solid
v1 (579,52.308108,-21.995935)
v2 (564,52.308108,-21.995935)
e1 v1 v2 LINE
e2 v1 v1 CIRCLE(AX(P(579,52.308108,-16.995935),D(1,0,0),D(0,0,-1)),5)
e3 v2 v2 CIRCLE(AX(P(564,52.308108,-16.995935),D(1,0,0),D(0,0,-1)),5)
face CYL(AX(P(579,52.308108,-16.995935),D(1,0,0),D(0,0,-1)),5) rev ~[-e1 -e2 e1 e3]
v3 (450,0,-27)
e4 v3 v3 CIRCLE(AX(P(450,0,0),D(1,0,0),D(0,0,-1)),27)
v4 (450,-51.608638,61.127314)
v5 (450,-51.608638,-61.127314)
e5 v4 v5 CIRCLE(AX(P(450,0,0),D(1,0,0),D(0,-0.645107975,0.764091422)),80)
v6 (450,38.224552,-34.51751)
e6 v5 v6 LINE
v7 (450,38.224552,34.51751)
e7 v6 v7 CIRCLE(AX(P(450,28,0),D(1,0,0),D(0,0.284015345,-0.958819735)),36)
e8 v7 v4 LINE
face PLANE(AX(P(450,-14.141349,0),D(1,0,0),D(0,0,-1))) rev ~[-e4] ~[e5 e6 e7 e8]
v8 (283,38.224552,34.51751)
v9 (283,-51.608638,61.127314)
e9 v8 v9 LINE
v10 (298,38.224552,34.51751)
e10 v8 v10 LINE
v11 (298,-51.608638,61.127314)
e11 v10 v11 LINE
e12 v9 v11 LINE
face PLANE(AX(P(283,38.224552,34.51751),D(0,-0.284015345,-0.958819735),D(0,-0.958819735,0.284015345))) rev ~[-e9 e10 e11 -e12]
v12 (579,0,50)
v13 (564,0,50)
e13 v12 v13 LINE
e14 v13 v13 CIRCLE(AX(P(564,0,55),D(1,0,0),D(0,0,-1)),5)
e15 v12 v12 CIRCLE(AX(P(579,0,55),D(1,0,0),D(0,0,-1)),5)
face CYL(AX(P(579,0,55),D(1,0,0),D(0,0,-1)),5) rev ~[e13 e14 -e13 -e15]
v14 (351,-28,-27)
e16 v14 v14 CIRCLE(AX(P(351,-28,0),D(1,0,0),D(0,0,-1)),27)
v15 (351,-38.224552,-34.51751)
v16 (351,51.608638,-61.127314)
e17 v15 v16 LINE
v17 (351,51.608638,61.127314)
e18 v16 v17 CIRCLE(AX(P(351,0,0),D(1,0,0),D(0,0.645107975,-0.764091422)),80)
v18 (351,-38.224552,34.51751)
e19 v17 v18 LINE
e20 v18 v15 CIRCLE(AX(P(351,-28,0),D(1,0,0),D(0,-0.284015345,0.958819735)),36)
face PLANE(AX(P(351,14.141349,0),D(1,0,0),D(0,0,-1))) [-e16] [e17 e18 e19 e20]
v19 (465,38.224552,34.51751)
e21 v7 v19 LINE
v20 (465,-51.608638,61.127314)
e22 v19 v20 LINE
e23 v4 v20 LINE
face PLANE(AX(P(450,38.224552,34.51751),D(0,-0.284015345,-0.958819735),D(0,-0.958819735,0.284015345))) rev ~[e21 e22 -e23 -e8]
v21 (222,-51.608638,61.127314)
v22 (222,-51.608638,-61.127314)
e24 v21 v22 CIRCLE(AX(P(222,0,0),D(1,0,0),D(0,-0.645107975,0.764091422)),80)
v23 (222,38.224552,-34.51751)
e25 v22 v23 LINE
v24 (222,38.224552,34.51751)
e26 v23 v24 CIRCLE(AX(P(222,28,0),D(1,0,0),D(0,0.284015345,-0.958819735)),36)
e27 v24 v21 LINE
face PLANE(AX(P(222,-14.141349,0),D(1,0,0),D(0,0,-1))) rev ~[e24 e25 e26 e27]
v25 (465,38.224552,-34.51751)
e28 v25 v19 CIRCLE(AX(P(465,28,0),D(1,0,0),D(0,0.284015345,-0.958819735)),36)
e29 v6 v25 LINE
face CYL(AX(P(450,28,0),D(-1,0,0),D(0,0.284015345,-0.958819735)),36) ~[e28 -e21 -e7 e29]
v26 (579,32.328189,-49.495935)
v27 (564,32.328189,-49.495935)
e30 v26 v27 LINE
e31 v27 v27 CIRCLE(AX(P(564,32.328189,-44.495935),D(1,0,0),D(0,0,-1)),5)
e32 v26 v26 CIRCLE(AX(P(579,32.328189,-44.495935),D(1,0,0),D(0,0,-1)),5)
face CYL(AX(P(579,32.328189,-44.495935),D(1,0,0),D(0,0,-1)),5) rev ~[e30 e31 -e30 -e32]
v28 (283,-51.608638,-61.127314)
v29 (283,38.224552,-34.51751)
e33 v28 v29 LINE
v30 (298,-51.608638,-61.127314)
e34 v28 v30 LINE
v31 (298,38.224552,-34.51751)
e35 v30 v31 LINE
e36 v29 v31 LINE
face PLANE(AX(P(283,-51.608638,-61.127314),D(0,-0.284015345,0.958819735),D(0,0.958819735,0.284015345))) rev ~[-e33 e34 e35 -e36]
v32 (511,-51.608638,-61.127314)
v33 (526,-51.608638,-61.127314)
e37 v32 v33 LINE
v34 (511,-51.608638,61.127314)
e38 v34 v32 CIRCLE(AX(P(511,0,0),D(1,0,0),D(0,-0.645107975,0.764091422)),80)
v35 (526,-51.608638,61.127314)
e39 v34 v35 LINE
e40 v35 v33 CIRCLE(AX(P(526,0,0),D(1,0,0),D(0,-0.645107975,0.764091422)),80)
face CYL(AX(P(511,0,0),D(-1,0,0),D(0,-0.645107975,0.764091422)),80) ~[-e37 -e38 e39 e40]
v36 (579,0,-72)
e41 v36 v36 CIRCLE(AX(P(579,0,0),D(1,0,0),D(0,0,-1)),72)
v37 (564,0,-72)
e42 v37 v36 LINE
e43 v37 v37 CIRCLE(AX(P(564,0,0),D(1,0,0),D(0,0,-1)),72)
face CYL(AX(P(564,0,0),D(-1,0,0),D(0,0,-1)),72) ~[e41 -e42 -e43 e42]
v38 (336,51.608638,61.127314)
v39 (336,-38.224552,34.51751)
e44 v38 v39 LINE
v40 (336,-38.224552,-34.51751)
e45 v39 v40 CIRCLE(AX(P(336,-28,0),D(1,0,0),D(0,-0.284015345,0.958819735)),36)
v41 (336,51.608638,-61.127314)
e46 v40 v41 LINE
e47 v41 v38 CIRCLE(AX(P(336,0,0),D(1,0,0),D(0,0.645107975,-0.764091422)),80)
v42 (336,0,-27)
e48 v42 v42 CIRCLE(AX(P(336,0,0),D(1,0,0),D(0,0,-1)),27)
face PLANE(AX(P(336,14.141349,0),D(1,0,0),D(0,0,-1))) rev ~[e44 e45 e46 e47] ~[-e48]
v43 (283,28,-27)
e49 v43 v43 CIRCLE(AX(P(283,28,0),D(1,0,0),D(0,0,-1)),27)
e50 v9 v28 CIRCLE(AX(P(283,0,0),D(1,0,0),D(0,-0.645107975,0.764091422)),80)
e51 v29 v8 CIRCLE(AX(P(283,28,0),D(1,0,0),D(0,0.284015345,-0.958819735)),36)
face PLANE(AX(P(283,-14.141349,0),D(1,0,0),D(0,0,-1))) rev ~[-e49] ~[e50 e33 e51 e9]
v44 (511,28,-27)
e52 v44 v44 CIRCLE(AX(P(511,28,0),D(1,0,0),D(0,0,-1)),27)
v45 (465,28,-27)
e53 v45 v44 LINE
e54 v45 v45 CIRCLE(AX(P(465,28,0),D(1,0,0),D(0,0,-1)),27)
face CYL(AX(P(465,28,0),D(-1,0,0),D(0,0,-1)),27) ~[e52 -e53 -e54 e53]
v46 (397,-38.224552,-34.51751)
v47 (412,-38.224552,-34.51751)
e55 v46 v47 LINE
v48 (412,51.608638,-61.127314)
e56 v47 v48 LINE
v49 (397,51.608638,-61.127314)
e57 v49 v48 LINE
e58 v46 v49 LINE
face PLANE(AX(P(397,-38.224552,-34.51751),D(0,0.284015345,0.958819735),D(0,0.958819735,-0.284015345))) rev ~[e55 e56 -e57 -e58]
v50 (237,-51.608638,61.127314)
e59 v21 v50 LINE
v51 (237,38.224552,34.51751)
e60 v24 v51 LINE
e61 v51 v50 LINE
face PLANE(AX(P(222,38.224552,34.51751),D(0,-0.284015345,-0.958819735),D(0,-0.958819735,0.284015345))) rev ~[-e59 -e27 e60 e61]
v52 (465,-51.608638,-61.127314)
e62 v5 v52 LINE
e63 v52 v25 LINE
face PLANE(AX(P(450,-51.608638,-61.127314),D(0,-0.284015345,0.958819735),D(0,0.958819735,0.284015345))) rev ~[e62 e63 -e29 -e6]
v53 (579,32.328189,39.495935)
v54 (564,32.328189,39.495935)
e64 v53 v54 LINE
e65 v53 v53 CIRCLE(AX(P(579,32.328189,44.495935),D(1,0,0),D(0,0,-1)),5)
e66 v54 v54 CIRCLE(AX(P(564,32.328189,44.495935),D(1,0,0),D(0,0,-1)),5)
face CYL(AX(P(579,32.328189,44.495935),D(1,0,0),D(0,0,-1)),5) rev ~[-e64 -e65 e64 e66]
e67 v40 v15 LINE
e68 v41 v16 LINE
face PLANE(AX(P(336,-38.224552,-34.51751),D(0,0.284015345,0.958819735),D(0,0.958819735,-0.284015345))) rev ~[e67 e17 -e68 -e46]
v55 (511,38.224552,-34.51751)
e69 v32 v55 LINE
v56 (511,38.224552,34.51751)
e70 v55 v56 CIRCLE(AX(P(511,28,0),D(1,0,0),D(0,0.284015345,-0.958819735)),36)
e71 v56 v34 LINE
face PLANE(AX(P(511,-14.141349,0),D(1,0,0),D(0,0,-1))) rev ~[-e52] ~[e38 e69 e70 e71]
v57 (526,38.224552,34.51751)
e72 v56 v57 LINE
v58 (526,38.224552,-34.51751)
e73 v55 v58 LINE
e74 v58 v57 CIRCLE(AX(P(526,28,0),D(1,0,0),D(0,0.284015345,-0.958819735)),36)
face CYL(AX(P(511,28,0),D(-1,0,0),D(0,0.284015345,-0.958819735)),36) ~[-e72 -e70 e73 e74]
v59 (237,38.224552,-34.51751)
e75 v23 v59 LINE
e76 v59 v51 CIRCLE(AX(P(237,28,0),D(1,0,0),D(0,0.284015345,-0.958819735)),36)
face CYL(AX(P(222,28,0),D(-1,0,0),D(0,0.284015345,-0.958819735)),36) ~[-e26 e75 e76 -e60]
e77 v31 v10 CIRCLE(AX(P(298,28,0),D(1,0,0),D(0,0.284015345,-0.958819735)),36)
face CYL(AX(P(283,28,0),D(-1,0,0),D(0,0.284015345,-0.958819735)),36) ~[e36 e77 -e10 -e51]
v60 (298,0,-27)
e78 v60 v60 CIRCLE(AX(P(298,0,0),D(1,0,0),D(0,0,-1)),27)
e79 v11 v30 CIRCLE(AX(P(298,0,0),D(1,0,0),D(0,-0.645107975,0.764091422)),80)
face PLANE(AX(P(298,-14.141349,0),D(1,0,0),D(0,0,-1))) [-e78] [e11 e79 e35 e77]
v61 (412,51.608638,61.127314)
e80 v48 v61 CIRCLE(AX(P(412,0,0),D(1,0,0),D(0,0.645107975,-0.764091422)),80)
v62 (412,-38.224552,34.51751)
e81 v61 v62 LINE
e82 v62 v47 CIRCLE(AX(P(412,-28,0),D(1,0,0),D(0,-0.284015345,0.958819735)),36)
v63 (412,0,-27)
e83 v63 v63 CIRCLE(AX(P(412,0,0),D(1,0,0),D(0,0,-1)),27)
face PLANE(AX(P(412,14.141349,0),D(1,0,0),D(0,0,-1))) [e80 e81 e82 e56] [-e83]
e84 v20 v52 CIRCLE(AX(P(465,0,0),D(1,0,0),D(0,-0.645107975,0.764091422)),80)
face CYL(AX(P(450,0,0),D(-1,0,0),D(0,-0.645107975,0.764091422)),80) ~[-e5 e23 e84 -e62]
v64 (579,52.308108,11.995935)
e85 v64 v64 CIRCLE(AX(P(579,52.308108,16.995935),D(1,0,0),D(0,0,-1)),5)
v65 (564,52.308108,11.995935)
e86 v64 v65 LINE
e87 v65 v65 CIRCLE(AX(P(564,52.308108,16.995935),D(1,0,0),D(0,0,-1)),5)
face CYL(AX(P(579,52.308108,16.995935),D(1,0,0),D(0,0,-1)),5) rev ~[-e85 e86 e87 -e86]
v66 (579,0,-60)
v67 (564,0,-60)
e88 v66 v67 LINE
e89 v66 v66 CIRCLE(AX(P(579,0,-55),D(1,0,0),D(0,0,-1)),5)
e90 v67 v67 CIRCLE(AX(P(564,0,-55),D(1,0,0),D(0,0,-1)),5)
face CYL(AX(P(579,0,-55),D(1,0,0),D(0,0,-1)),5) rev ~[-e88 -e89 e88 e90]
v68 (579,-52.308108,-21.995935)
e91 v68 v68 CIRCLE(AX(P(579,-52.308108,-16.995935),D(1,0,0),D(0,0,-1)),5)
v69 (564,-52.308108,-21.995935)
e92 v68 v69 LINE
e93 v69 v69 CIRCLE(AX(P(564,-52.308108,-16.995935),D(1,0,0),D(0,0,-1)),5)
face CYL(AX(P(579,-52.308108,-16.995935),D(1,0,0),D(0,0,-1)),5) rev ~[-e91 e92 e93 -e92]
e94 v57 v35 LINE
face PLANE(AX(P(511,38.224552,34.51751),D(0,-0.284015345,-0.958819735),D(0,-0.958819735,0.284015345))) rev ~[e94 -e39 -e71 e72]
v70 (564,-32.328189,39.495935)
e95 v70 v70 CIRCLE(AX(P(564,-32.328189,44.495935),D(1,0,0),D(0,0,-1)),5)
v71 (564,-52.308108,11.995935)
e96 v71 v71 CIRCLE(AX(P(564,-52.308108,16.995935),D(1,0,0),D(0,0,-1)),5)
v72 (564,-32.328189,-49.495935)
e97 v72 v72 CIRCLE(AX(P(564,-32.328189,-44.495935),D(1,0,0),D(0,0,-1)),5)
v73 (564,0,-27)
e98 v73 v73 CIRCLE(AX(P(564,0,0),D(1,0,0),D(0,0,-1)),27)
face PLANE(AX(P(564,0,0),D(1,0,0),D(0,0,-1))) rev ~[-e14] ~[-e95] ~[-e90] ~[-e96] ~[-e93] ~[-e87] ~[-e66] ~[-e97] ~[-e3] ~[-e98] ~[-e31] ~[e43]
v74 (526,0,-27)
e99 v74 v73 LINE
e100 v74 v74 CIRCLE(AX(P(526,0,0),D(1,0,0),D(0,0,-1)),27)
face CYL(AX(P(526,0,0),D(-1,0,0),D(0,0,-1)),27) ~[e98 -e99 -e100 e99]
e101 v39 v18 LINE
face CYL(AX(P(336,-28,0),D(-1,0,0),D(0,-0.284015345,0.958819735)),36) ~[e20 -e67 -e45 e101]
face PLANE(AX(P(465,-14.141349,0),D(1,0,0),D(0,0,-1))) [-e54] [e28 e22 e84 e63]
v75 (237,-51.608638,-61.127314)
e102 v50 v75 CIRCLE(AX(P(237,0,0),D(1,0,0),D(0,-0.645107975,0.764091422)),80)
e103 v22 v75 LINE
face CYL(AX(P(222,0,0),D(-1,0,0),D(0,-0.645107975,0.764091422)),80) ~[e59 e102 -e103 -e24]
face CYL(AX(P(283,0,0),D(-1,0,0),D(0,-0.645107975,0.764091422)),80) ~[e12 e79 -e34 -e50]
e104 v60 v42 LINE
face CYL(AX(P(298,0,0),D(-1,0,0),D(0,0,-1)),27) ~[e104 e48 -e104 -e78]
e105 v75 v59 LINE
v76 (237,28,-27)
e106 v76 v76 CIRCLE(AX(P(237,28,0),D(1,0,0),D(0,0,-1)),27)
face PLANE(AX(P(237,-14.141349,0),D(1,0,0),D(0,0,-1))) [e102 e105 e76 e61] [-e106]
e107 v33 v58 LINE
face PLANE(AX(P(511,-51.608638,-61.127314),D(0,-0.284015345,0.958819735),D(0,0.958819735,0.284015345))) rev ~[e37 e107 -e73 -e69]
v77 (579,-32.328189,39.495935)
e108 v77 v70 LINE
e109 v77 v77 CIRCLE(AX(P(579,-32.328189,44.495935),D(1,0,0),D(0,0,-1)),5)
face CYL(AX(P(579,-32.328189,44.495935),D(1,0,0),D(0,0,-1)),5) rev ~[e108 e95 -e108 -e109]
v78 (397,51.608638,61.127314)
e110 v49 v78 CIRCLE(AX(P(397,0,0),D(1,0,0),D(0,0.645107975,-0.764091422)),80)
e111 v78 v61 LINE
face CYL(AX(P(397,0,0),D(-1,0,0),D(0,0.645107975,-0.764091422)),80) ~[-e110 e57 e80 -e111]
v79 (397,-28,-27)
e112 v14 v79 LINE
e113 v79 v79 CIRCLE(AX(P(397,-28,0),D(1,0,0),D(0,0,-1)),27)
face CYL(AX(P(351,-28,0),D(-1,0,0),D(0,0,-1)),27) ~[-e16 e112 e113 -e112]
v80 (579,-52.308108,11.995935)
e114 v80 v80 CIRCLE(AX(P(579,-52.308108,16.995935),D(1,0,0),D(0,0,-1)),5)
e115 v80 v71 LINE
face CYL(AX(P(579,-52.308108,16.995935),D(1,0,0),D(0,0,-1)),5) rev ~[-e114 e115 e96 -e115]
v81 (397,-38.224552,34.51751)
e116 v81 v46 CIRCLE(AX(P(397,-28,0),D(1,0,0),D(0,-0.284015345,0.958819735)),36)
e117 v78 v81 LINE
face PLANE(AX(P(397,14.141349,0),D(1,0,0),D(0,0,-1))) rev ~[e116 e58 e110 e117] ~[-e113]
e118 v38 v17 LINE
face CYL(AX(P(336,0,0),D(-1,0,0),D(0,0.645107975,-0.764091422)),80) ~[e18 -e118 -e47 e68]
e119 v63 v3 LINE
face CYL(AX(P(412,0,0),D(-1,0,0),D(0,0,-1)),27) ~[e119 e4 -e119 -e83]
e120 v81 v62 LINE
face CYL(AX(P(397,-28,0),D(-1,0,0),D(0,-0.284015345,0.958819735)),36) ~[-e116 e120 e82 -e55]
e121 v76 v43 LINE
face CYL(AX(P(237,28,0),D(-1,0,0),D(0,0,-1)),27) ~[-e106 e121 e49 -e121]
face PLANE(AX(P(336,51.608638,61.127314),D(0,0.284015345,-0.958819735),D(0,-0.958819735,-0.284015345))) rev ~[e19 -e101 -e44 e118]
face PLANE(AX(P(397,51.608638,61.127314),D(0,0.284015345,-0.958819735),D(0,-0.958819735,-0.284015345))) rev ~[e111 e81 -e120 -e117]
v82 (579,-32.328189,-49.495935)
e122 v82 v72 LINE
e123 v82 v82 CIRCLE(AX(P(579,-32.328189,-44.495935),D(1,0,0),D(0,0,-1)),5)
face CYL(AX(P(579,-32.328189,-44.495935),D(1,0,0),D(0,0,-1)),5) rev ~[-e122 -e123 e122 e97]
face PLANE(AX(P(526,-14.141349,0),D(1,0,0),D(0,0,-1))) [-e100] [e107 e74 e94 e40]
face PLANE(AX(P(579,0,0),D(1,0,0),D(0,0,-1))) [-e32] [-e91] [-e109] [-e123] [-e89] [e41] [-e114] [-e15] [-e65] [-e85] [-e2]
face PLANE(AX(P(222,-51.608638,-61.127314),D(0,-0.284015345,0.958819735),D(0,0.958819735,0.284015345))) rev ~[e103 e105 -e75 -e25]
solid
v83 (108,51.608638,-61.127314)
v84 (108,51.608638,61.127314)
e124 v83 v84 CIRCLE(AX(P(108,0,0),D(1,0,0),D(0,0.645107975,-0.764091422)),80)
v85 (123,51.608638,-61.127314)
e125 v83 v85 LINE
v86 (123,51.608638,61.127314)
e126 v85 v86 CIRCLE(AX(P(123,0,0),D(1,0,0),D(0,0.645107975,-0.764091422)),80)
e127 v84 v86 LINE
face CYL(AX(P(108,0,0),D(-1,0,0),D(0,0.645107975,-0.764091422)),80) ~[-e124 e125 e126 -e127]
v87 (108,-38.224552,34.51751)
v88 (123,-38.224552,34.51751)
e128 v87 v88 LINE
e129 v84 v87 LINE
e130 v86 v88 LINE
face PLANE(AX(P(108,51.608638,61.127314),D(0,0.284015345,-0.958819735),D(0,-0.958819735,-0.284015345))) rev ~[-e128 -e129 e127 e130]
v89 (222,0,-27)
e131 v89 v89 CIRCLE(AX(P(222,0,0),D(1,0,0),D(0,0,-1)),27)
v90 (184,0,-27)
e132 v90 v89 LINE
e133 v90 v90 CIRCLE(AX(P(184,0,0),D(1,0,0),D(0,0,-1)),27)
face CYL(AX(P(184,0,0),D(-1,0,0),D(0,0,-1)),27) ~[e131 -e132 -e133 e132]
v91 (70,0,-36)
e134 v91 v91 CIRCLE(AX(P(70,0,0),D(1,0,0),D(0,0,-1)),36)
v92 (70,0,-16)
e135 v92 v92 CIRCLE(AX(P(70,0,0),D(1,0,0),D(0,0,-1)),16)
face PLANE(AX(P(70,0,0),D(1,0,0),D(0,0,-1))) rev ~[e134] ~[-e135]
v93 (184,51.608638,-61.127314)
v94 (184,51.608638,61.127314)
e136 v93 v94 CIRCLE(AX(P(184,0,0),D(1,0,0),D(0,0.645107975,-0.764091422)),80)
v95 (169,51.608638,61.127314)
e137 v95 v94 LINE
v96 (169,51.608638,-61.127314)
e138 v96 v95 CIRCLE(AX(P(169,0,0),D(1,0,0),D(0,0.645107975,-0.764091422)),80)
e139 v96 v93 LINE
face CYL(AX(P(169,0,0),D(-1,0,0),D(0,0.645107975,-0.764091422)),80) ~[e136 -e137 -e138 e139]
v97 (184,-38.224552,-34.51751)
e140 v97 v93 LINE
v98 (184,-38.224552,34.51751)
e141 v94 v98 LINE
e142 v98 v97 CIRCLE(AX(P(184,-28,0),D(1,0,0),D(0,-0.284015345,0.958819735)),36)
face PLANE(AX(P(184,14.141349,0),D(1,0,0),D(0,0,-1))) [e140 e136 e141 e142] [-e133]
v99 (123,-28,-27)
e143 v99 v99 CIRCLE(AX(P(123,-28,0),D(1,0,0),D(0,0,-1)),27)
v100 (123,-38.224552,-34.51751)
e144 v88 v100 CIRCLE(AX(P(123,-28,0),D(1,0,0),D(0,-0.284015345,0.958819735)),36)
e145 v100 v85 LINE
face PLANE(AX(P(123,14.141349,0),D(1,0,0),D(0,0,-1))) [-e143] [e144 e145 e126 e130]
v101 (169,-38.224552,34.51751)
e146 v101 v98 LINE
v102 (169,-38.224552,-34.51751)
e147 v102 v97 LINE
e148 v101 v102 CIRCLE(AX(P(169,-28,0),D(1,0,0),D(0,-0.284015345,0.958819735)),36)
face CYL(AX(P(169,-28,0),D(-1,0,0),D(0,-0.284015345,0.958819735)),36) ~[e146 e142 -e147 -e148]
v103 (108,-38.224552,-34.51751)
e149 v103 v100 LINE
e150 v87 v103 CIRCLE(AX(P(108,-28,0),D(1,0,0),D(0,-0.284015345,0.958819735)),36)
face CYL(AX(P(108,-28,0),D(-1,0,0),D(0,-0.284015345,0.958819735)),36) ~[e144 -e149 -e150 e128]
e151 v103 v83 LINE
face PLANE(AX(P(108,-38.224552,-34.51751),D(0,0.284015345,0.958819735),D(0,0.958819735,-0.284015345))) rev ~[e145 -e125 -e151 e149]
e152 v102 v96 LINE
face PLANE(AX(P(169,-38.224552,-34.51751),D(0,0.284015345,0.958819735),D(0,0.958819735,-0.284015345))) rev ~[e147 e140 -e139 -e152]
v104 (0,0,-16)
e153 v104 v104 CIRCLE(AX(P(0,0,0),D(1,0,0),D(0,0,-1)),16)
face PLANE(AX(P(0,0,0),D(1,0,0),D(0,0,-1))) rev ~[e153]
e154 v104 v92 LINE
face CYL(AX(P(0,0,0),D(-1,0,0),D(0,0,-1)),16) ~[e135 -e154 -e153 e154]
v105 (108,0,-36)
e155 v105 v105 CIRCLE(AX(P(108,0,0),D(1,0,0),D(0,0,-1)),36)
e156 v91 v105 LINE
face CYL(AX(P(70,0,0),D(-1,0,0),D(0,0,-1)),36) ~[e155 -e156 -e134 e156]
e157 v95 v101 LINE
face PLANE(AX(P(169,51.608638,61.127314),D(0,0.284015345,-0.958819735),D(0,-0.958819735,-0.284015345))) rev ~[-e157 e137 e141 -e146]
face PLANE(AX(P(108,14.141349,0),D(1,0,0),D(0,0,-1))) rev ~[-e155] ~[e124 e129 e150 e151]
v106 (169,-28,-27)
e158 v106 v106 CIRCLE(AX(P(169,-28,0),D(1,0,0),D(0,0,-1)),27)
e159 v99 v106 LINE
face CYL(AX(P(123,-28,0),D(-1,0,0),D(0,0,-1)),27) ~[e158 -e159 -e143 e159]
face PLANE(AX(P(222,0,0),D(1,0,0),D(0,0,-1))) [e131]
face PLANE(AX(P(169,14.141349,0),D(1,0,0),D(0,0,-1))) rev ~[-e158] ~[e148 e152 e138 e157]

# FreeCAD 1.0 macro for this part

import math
import FreeCAD as App
import Part
import Sketcher

V = App.Vector
Q = App.Units.Quantity

doc = App.newDocument("Part")
body = doc.addObject("PartDesign::Body", "Body")

# Sketch on YZ plane
sketch1 = body.newObject("Sketcher::SketchObject", "Sketch")
sketch1.AttachmentSupport = (doc.getObject("YZ_Plane"), [""])
sketch1.MapMode = "FlatFace"
sketch1.addGeometry(Part.Circle(V(0, 0, 0), V(0, 0, 1), 16), False)
sketch1.addConstraint([
    Sketcher.Constraint("Coincident", 0, 3, -1, 1),
    Sketcher.Constraint("Diameter", 0, Q("32 mm")),
])
pad1 = body.newObject("PartDesign::Pad", "Pad")
pad1.Profile = sketch1
pad1.Length = 70

# Sketch on YZ plane
sketch2 = body.newObject("Sketcher::SketchObject", "Sketch001")
sketch2.AttachmentSupport = (doc.getObject("YZ_Plane"), [""])
sketch2.MapMode = "FlatFace"
sketch2.AttachmentOffset = App.Placement(V(0, 0, 70), App.Rotation())
sketch2.addGeometry(Part.Circle(V(0, 0, 0), V(0, 0, 1), 36), False)
sketch2.addConstraint([
    Sketcher.Constraint("Coincident", 0, 3, -1, 1),
    Sketcher.Constraint("Diameter", 0, Q("72 mm")),
])
pad2 = body.newObject("PartDesign::Pad", "Pad001")
pad2.Profile = sketch2
pad2.Length = 38

# Sketch on YZ plane
sketch3 = body.newObject("Sketcher::SketchObject", "Sketch002")
sketch3.AttachmentSupport = (doc.getObject("YZ_Plane"), [""])
sketch3.MapMode = "FlatFace"
sketch3.AttachmentOffset = App.Placement(V(0, 0, 108), App.Rotation())
sketch3.addGeometry([
    Part.LineSegment(V(-38, -35, 0), V(52, -61, 0)),
    Part.ArcOfCircle(Part.Circle(V(0, 0, 0), V(0, 0, 1), 80), math.radians(-50), math.radians(50)),
    Part.LineSegment(V(52, 61, 0), V(-38, 35, 0)),
    Part.ArcOfCircle(Part.Circle(V(-28, 0, 0), V(0, 0, 1), 36), math.radians(106), math.radians(254)),
], False)
sketch3.addConstraint([
    Sketcher.Constraint("Coincident", 0, 2, 1, 1),
    Sketcher.Constraint("Coincident", 1, 2, 2, 1),
    Sketcher.Constraint("Tangent", 2, 2, 3, 1),
    Sketcher.Constraint("Tangent", 3, 2, 0, 1),
    Sketcher.Constraint("Coincident", 1, 3, -1, 1),
    Sketcher.Constraint("Symmetric", 2, 2, 3, 2, -1),
    Sketcher.Constraint("Radius", 1, Q("80 mm")),
    Sketcher.Constraint("Radius", 3, Q("36 mm")),
    Sketcher.Constraint("DistanceX", 3, 3, -1, 1, Q("28 mm")),
    Sketcher.Constraint("Angle", 0, Q("-16.5 deg")),
])
pad3 = body.newObject("PartDesign::Pad", "Pad002")
pad3.Profile = sketch3
pad3.Length = 15

# Sketch on YZ plane
sketch4 = body.newObject("Sketcher::SketchObject", "Sketch003")
sketch4.AttachmentSupport = (doc.getObject("YZ_Plane"), [""])
sketch4.MapMode = "FlatFace"
sketch4.AttachmentOffset = App.Placement(V(0, 0, 123), App.Rotation())
sketch4.addGeometry(Part.Circle(V(-28, 0, 0), V(0, 0, 1), 27), False)
sketch4.addConstraint([
    Sketcher.Constraint("PointOnObject", 0, 3, -1),
    Sketcher.Constraint("Diameter", 0, Q("54 mm")),
    Sketcher.Constraint("DistanceX", 0, 3, -1, 1, Q("28 mm")),
])
pad4 = body.newObject("PartDesign::Pad", "Pad003")
pad4.Profile = sketch4
pad4.Length = 46

# Sketch on YZ plane
sketch5 = body.newObject("Sketcher::SketchObject", "Sketch004")
sketch5.AttachmentSupport = (doc.getObject("YZ_Plane"), [""])
sketch5.MapMode = "FlatFace"
sketch5.AttachmentOffset = App.Placement(V(0, 0, 169), App.Rotation())
sketch5.addGeometry([
    Part.LineSegment(V(-38, -35, 0), V(52, -61, 0)),
    Part.ArcOfCircle(Part.Circle(V(0, 0, 0), V(0, 0, 1), 80), math.radians(-50), math.radians(50)),
    Part.LineSegment(V(52, 61, 0), V(-38, 35, 0)),
    Part.ArcOfCircle(Part.Circle(V(-28, 0, 0), V(0, 0, 1), 36), math.radians(106), math.radians(254)),
], False)
sketch5.addConstraint([
    Sketcher.Constraint("Coincident", 0, 2, 1, 1),
    Sketcher.Constraint("Coincident", 1, 2, 2, 1),
    Sketcher.Constraint("Tangent", 2, 2, 3, 1),
    Sketcher.Constraint("Tangent", 3, 2, 0, 1),
    Sketcher.Constraint("Coincident", 1, 3, -1, 1),
    Sketcher.Constraint("Symmetric", 2, 2, 3, 2, -1),
    Sketcher.Constraint("Radius", 1, Q("80 mm")),
    Sketcher.Constraint("Radius", 3, Q("36 mm")),
    Sketcher.Constraint("DistanceX", 3, 3, -1, 1, Q("28 mm")),
    Sketcher.Constraint("Angle", 0, Q("-16.5 deg")),
])
pad5 = body.newObject("PartDesign::Pad", "Pad004")
pad5.Profile = sketch5
pad5.Length = 15

# Sketch on YZ plane
sketch6 = body.newObject("Sketcher::SketchObject", "Sketch005")
sketch6.AttachmentSupport = (doc.getObject("YZ_Plane"), [""])
sketch6.MapMode = "FlatFace"
sketch6.AttachmentOffset = App.Placement(V(0, 0, 184), App.Rotation())
sketch6.addGeometry(Part.Circle(V(0, 0, 0), V(0, 0, 1), 27), False)
sketch6.addConstraint([
    Sketcher.Constraint("Coincident", 0, 3, -1, 1),
    Sketcher.Constraint("Diameter", 0, Q("54 mm")),
])
pad6 = body.newObject("PartDesign::Pad", "Pad005")
pad6.Profile = sketch6
pad6.Length = 38
body2 = doc.addObject("PartDesign::Body", "Body001")

# Sketch on YZ plane
sketch7 = body2.newObject("Sketcher::SketchObject", "Sketch006")
sketch7.AttachmentSupport = (doc.getObject("YZ_Plane001"), [""])
sketch7.MapMode = "FlatFace"
sketch7.AttachmentOffset = App.Placement(V(0, 0, 222), App.Rotation())
sketch7.addGeometry([
    Part.LineSegment(V(38, 35, 0), V(-52, 61, 0)),
    Part.ArcOfCircle(Part.Circle(V(0, 0, 0), V(0, 0, 1), 80), math.radians(130), math.radians(230)),
    Part.LineSegment(V(-52, -61, 0), V(38, -35, 0)),
    Part.ArcOfCircle(Part.Circle(V(28, 0, 0), V(0, 0, 1), 36), math.radians(-74), math.radians(74)),
], False)
sketch7.addConstraint([
    Sketcher.Constraint("Coincident", 0, 2, 1, 1),
    Sketcher.Constraint("Coincident", 1, 2, 2, 1),
    Sketcher.Constraint("Tangent", 2, 2, 3, 1),
    Sketcher.Constraint("Tangent", 3, 2, 0, 1),
    Sketcher.Constraint("Coincident", 1, 3, -1, 1),
    Sketcher.Constraint("Symmetric", 2, 2, 3, 2, -1),
    Sketcher.Constraint("Radius", 1, Q("80 mm")),
    Sketcher.Constraint("Radius", 3, Q("36 mm")),
    Sketcher.Constraint("DistanceX", -1, 1, 3, 3, Q("28 mm")),
    Sketcher.Constraint("Angle", 0, Q("163.5 deg")),
])
pad7 = body2.newObject("PartDesign::Pad", "Pad006")
pad7.Profile = sketch7
pad7.Length = 15

# Sketch on YZ plane
sketch8 = body2.newObject("Sketcher::SketchObject", "Sketch007")
sketch8.AttachmentSupport = (doc.getObject("YZ_Plane001"), [""])
sketch8.MapMode = "FlatFace"
sketch8.AttachmentOffset = App.Placement(V(0, 0, 237), App.Rotation())
sketch8.addGeometry(Part.Circle(V(28, 0, 0), V(0, 0, 1), 27), False)
sketch8.addConstraint([
    Sketcher.Constraint("PointOnObject", 0, 3, -1),
    Sketcher.Constraint("Diameter", 0, Q("54 mm")),
    Sketcher.Constraint("DistanceX", -1, 1, 0, 3, Q("28 mm")),
])
pad8 = body2.newObject("PartDesign::Pad", "Pad007")
pad8.Profile = sketch8
pad8.Length = 46

# Sketch on YZ plane
sketch9 = body2.newObject("Sketcher::SketchObject", "Sketch008")
sketch9.AttachmentSupport = (doc.getObject("YZ_Plane001"), [""])
sketch9.MapMode = "FlatFace"
sketch9.AttachmentOffset = App.Placement(V(0, 0, 283), App.Rotation())
sketch9.addGeometry([
    Part.LineSegment(V(38, 35, 0), V(-52, 61, 0)),
    Part.ArcOfCircle(Part.Circle(V(0, 0, 0), V(0, 0, 1), 80), math.radians(130), math.radians(230)),
    Part.LineSegment(V(-52, -61, 0), V(38, -35, 0)),
    Part.ArcOfCircle(Part.Circle(V(28, 0, 0), V(0, 0, 1), 36), math.radians(-74), math.radians(74)),
], False)
sketch9.addConstraint([
    Sketcher.Constraint("Coincident", 0, 2, 1, 1),
    Sketcher.Constraint("Coincident", 1, 2, 2, 1),
    Sketcher.Constraint("Tangent", 2, 2, 3, 1),
    Sketcher.Constraint("Tangent", 3, 2, 0, 1),
    Sketcher.Constraint("Coincident", 1, 3, -1, 1),
    Sketcher.Constraint("Symmetric", 2, 2, 3, 2, -1),
    Sketcher.Constraint("Radius", 1, Q("80 mm")),
    Sketcher.Constraint("Radius", 3, Q("36 mm")),
    Sketcher.Constraint("DistanceX", -1, 1, 3, 3, Q("28 mm")),
    Sketcher.Constraint("Angle", 0, Q("163.5 deg")),
])
pad9 = body2.newObject("PartDesign::Pad", "Pad008")
pad9.Profile = sketch9
pad9.Length = 15

# Sketch on YZ plane
sketch10 = body2.newObject("Sketcher::SketchObject", "Sketch009")
sketch10.AttachmentSupport = (doc.getObject("YZ_Plane001"), [""])
sketch10.MapMode = "FlatFace"
sketch10.AttachmentOffset = App.Placement(V(0, 0, 298), App.Rotation())
sketch10.addGeometry(Part.Circle(V(0, 0, 0), V(0, 0, 1), 27), False)
sketch10.addConstraint([
    Sketcher.Constraint("Coincident", 0, 3, -1, 1),
    Sketcher.Constraint("Diameter", 0, Q("54 mm")),
])
pad10 = body2.newObject("PartDesign::Pad", "Pad009")
pad10.Profile = sketch10
pad10.Length = 38

# Sketch on YZ plane
sketch11 = body2.newObject("Sketcher::SketchObject", "Sketch010")
sketch11.AttachmentSupport = (doc.getObject("YZ_Plane001"), [""])
sketch11.MapMode = "FlatFace"
sketch11.AttachmentOffset = App.Placement(V(0, 0, 336), App.Rotation())
sketch11.addGeometry([
    Part.LineSegment(V(-38, -35, 0), V(52, -61, 0)),
    Part.ArcOfCircle(Part.Circle(V(0, 0, 0), V(0, 0, 1), 80), math.radians(-50), math.radians(50)),
    Part.LineSegment(V(52, 61, 0), V(-38, 35, 0)),
    Part.ArcOfCircle(Part.Circle(V(-28, 0, 0), V(0, 0, 1), 36), math.radians(106), math.radians(254)),
], False)
sketch11.addConstraint([
    Sketcher.Constraint("Coincident", 0, 2, 1, 1),
    Sketcher.Constraint("Coincident", 1, 2, 2, 1),
    Sketcher.Constraint("Tangent", 2, 2, 3, 1),
    Sketcher.Constraint("Tangent", 3, 2, 0, 1),
    Sketcher.Constraint("Coincident", 1, 3, -1, 1),
    Sketcher.Constraint("Symmetric", 2, 2, 3, 2, -1),
    Sketcher.Constraint("Radius", 1, Q("80 mm")),
    Sketcher.Constraint("Radius", 3, Q("36 mm")),
    Sketcher.Constraint("DistanceX", 3, 3, -1, 1, Q("28 mm")),
    Sketcher.Constraint("Angle", 0, Q("-16.5 deg")),
])
pad11 = body2.newObject("PartDesign::Pad", "Pad010")
pad11.Profile = sketch11
pad11.Length = 15

# Sketch on YZ plane
sketch12 = body2.newObject("Sketcher::SketchObject", "Sketch011")
sketch12.AttachmentSupport = (doc.getObject("YZ_Plane001"), [""])
sketch12.MapMode = "FlatFace"
sketch12.AttachmentOffset = App.Placement(V(0, 0, 351), App.Rotation())
sketch12.addGeometry(Part.Circle(V(-28, 0, 0), V(0, 0, 1), 27), False)
sketch12.addConstraint([
    Sketcher.Constraint("PointOnObject", 0, 3, -1),
    Sketcher.Constraint("Diameter", 0, Q("54 mm")),
    Sketcher.Constraint("DistanceX", 0, 3, -1, 1, Q("28 mm")),
])
pad12 = body2.newObject("PartDesign::Pad", "Pad011")
pad12.Profile = sketch12
pad12.Length = 46

# Sketch on YZ plane
sketch13 = body2.newObject("Sketcher::SketchObject", "Sketch012")
sketch13.AttachmentSupport = (doc.getObject("YZ_Plane001"), [""])
sketch13.MapMode = "FlatFace"
sketch13.AttachmentOffset = App.Placement(V(0, 0, 397), App.Rotation())
sketch13.addGeometry([
    Part.LineSegment(V(52, 61, 0), V(-38, 35, 0)),
    Part.ArcOfCircle(Part.Circle(V(-28, 0, 0), V(0, 0, 1), 36), math.radians(106), math.radians(254)),
    Part.LineSegment(V(-38, -35, 0), V(52, -61, 0)),
    Part.ArcOfCircle(Part.Circle(V(0, 0, 0), V(0, 0, 1), 80), math.radians(-50), math.radians(50)),
], False)
sketch13.addConstraint([
    Sketcher.Constraint("Tangent", 0, 2, 1, 1),
    Sketcher.Constraint("Tangent", 1, 2, 2, 1),
    Sketcher.Constraint("Coincident", 2, 2, 3, 1),
    Sketcher.Constraint("Coincident", 3, 2, 0, 1),
    Sketcher.Constraint("Coincident", 3, 3, -1, 1),
    Sketcher.Constraint("Symmetric", 0, 2, 1, 2, -1),
    Sketcher.Constraint("Radius", 1, Q("36 mm")),
    Sketcher.Constraint("Radius", 3, Q("80 mm")),
    Sketcher.Constraint("DistanceX", 1, 3, -1, 1, Q("28 mm")),
    Sketcher.Constraint("Angle", 0, Q("-163.5 deg")),
])
pad13 = body2.newObject("PartDesign::Pad", "Pad012")
pad13.Profile = sketch13
pad13.Length = 15

# Sketch on YZ plane
sketch14 = body2.newObject("Sketcher::SketchObject", "Sketch013")
sketch14.AttachmentSupport = (doc.getObject("YZ_Plane001"), [""])
sketch14.MapMode = "FlatFace"
sketch14.AttachmentOffset = App.Placement(V(0, 0, 412), App.Rotation())
sketch14.addGeometry(Part.Circle(V(0, 0, 0), V(0, 0, 1), 27), False)
sketch14.addConstraint([
    Sketcher.Constraint("Coincident", 0, 3, -1, 1),
    Sketcher.Constraint("Diameter", 0, Q("54 mm")),
])
pad14 = body2.newObject("PartDesign::Pad", "Pad013")
pad14.Profile = sketch14
pad14.Length = 38

# Sketch on YZ plane
sketch15 = body2.newObject("Sketcher::SketchObject", "Sketch014")
sketch15.AttachmentSupport = (doc.getObject("YZ_Plane001"), [""])
sketch15.MapMode = "FlatFace"
sketch15.AttachmentOffset = App.Placement(V(0, 0, 450), App.Rotation())
sketch15.addGeometry([
    Part.LineSegment(V(38, 35, 0), V(-52, 61, 0)),
    Part.ArcOfCircle(Part.Circle(V(0, 0, 0), V(0, 0, 1), 80), math.radians(130), math.radians(230)),
    Part.LineSegment(V(-52, -61, 0), V(38, -35, 0)),
    Part.ArcOfCircle(Part.Circle(V(28, 0, 0), V(0, 0, 1), 36), math.radians(-74), math.radians(74)),
], False)
sketch15.addConstraint([
    Sketcher.Constraint("Coincident", 0, 2, 1, 1),
    Sketcher.Constraint("Coincident", 1, 2, 2, 1),
    Sketcher.Constraint("Tangent", 2, 2, 3, 1),
    Sketcher.Constraint("Tangent", 3, 2, 0, 1),
    Sketcher.Constraint("Coincident", 1, 3, -1, 1),
    Sketcher.Constraint("Symmetric", 2, 2, 3, 2, -1),
    Sketcher.Constraint("Radius", 1, Q("80 mm")),
    Sketcher.Constraint("Radius", 3, Q("36 mm")),
    Sketcher.Constraint("DistanceX", -1, 1, 3, 3, Q("28 mm")),
    Sketcher.Constraint("Angle", 0, Q("163.5 deg")),
])
pad15 = body2.newObject("PartDesign::Pad", "Pad014")
pad15.Profile = sketch15
pad15.Length = 15

# Sketch on YZ plane
sketch16 = body2.newObject("Sketcher::SketchObject", "Sketch015")
sketch16.AttachmentSupport = (doc.getObject("YZ_Plane001"), [""])
sketch16.MapMode = "FlatFace"
sketch16.AttachmentOffset = App.Placement(V(0, 0, 465), App.Rotation())
sketch16.addGeometry(Part.Circle(V(28, 0, 0), V(0, 0, 1), 27), False)
sketch16.addConstraint([
    Sketcher.Constraint("PointOnObject", 0, 3, -1),
    Sketcher.Constraint("Diameter", 0, Q("54 mm")),
    Sketcher.Constraint("DistanceX", -1, 1, 0, 3, Q("28 mm")),
])
pad16 = body2.newObject("PartDesign::Pad", "Pad015")
pad16.Profile = sketch16
pad16.Length = 46

# Sketch on YZ plane
sketch17 = body2.newObject("Sketcher::SketchObject", "Sketch016")
sketch17.AttachmentSupport = (doc.getObject("YZ_Plane001"), [""])
sketch17.MapMode = "FlatFace"
sketch17.AttachmentOffset = App.Placement(V(0, 0, 511), App.Rotation())
sketch17.addGeometry([
    Part.LineSegment(V(38, 35, 0), V(-52, 61, 0)),
    Part.ArcOfCircle(Part.Circle(V(0, 0, 0), V(0, 0, 1), 80), math.radians(130), math.radians(230)),
    Part.LineSegment(V(-52, -61, 0), V(38, -35, 0)),
    Part.ArcOfCircle(Part.Circle(V(28, 0, 0), V(0, 0, 1), 36), math.radians(-74), math.radians(74)),
], False)
sketch17.addConstraint([
    Sketcher.Constraint("Coincident", 0, 2, 1, 1),
    Sketcher.Constraint("Coincident", 1, 2, 2, 1),
    Sketcher.Constraint("Tangent", 2, 2, 3, 1),
    Sketcher.Constraint("Tangent", 3, 2, 0, 1),
    Sketcher.Constraint("Coincident", 1, 3, -1, 1),
    Sketcher.Constraint("Symmetric", 2, 2, 3, 2, -1),
    Sketcher.Constraint("Radius", 1, Q("80 mm")),
    Sketcher.Constraint("Radius", 3, Q("36 mm")),
    Sketcher.Constraint("DistanceX", -1, 1, 3, 3, Q("28 mm")),
    Sketcher.Constraint("Angle", 0, Q("163.5 deg")),
])
pad17 = body2.newObject("PartDesign::Pad", "Pad016")
pad17.Profile = sketch17
pad17.Length = 15

# Sketch on YZ plane
sketch18 = body2.newObject("Sketcher::SketchObject", "Sketch017")
sketch18.AttachmentSupport = (doc.getObject("YZ_Plane001"), [""])
sketch18.MapMode = "FlatFace"
sketch18.AttachmentOffset = App.Placement(V(0, 0, 526), App.Rotation())
sketch18.addGeometry(Part.Circle(V(0, 0, 0), V(0, 0, 1), 27), False)
sketch18.addConstraint([
    Sketcher.Constraint("Coincident", 0, 3, -1, 1),
    Sketcher.Constraint("Diameter", 0, Q("54 mm")),
])
pad18 = body2.newObject("PartDesign::Pad", "Pad017")
pad18.Profile = sketch18
pad18.Length = 38

# Sketch on YZ plane
sketch19 = body2.newObject("Sketcher::SketchObject", "Sketch018")
sketch19.AttachmentSupport = (doc.getObject("YZ_Plane001"), [""])
sketch19.MapMode = "FlatFace"
sketch19.AttachmentOffset = App.Placement(V(0, 0, 564), App.Rotation())
sketch19.addGeometry(Part.Circle(V(0, 0, 0), V(0, 0, 1), 72), False)
sketch19.addConstraint([
    Sketcher.Constraint("Coincident", 0, 3, -1, 1),
    Sketcher.Constraint("Diameter", 0, Q("144 mm")),
])
pad19 = body2.newObject("PartDesign::Pad", "Pad018")
pad19.Profile = sketch19
pad19.Length = 15

# Sketch on YZ plane
sketch20 = body2.newObject("Sketcher::SketchObject", "Sketch019")
sketch20.AttachmentSupport = (doc.getObject("YZ_Plane001"), [""])
sketch20.MapMode = "FlatFace"
sketch20.AttachmentOffset = App.Placement(V(0, 0, 579), App.Rotation())
sketch20.addGeometry([
    Part.Circle(V(0, -55, 0), V(0, 0, 1), 5),  # 0
    Part.Circle(V(-32, -44, 0), V(0, 0, 1), 5),  # 1
    Part.Circle(V(-52, -17, 0), V(0, 0, 1), 5),  # 2
    Part.Circle(V(-52, 17, 0), V(0, 0, 1), 5),  # 3
    Part.Circle(V(-32, 44, 0), V(0, 0, 1), 5),  # 4
    Part.Circle(V(0, 55, 0), V(0, 0, 1), 5),  # 5
    Part.Circle(V(32, 44, 0), V(0, 0, 1), 5),  # 6
    Part.Circle(V(52, 17, 0), V(0, 0, 1), 5),  # 7
    Part.Circle(V(52, -17, 0), V(0, 0, 1), 5),  # 8
    Part.Circle(V(32, -44, 0), V(0, 0, 1), 5),  # 9
], False)
sketch20.addConstraint([
    Sketcher.Constraint("Equal", 0, 1),
    Sketcher.Constraint("Equal", 1, 2),
    Sketcher.Constraint("Equal", 2, 3),
    Sketcher.Constraint("Equal", 3, 4),
    Sketcher.Constraint("Equal", 4, 5),
    Sketcher.Constraint("Equal", 5, 6),
    Sketcher.Constraint("Equal", 6, 7),
    Sketcher.Constraint("Equal", 7, 8),
    Sketcher.Constraint("Equal", 8, 9),
    Sketcher.Constraint("Symmetric", 0, 3, 5, 3, -1, 1),
    Sketcher.Constraint("Symmetric", 1, 3, 6, 3, -1, 1),
    Sketcher.Constraint("Symmetric", 2, 3, 7, 3, -1, 1),
    Sketcher.Constraint("Symmetric", 3, 3, 8, 3, -1, 1),
    Sketcher.Constraint("Symmetric", 4, 3, 9, 3, -1, 1),
    Sketcher.Constraint("Symmetric", 4, 3, 6, 3, -2),
    Sketcher.Constraint("Symmetric", 3, 3, 7, 3, -2),
    Sketcher.Constraint("PointOnObject", 0, 3, -2),
    Sketcher.Constraint("Diameter", 0, Q("10 mm")),
    Sketcher.Constraint("DistanceY", 0, 3, -1, 1, Q("55 mm")),
    Sketcher.Constraint("DistanceY", 1, 3, 2, 3, Q("27.5 mm")),
    Sketcher.Constraint("DistanceX", 1, 3, -1, 1, Q("32.328189 mm")),
    Sketcher.Constraint("DistanceX", 2, 3, -1, 1, Q("52.308108 mm")),
    Sketcher.Constraint("DistanceY", 2, 3, 3, 3, Q("33.991869 mm")),
])
pocket1 = body2.newObject("PartDesign::Pocket", "Pocket")
pocket1.Profile = sketch20
pocket1.Length = 15

doc.recompute()
